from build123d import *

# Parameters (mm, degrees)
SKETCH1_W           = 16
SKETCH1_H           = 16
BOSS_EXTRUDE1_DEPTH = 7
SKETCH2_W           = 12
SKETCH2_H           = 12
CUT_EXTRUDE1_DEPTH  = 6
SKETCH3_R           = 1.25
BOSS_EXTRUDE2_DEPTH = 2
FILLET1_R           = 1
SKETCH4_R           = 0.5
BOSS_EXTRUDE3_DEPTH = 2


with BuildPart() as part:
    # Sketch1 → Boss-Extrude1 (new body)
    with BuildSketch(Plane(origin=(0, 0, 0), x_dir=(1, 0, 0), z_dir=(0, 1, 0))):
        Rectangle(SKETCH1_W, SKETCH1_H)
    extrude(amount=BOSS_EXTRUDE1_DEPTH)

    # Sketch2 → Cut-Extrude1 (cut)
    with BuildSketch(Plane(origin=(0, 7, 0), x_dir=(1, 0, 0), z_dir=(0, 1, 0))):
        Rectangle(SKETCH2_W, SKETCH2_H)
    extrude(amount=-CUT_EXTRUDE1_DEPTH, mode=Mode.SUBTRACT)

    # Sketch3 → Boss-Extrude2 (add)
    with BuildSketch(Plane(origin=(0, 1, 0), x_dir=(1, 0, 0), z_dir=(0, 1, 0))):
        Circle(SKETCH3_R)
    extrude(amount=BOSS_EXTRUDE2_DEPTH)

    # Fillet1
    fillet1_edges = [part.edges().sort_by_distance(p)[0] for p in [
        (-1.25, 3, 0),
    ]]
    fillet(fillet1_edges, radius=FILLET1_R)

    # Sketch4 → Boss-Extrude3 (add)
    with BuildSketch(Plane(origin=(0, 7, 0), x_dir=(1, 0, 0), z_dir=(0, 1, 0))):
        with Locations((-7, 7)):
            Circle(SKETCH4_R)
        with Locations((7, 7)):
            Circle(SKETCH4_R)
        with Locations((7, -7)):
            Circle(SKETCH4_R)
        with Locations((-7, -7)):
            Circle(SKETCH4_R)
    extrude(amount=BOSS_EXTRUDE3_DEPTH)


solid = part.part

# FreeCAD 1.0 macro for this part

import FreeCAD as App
import Part
import Sketcher

V = App.Vector
Q = App.Units.Quantity


def edges_at(feature, points):
    """Names of the edges that pass closest to the given points."""
    edges = feature.Shape.Edges
    near = lambda p: min(range(len(edges)), key=lambda i: edges[i].distToShape(Part.Vertex(*p))[0])
    return sorted({f"Edge{near(p) + 1}" for p in points})

doc = App.newDocument("Part")
body = doc.addObject("PartDesign::Body", "Body")

sketch1 = body.newObject("Sketcher::SketchObject", "Sketch")
sketch1.AttachmentSupport = (doc.getObject("XZ_Plane"), [""])
sketch1.MapMode = "FlatFace"
sketch1.addGeometry(Part.LineSegment(V(-8, -8, 0), V(-8, 8, 0)), False)
sketch1.addGeometry(Part.LineSegment(V(-8, 8, 0), V(8, 8, 0)), False)
sketch1.addGeometry(Part.LineSegment(V(8, 8, 0), V(8, -8, 0)), False)
sketch1.addGeometry(Part.LineSegment(V(8, -8, 0), V(-8, -8, 0)), False)
sketch1.addConstraint(Sketcher.Constraint("Coincident", 0, 2, 1, 1))
sketch1.addConstraint(Sketcher.Constraint("Coincident", 1, 2, 2, 1))
sketch1.addConstraint(Sketcher.Constraint("Coincident", 2, 2, 3, 1))
sketch1.addConstraint(Sketcher.Constraint("Coincident", 3, 2, 0, 1))
sketch1.addConstraint(Sketcher.Constraint("Vertical", 0))
sketch1.addConstraint(Sketcher.Constraint("Horizontal", 1))
sketch1.addConstraint(Sketcher.Constraint("Vertical", 2))
sketch1.addConstraint(Sketcher.Constraint("Horizontal", 3))
sketch1.addConstraint(Sketcher.Constraint("Symmetric", 0, 2, 2, 2, -1, 1))
sketch1.addConstraint(Sketcher.Constraint("Equal", 3, 0))
sketch1.addConstraint(Sketcher.Constraint("DistanceX", 1, 1, 1, 2, Q("16 mm")))
pad1 = body.newObject("PartDesign::Pad", "Pad")
pad1.Profile = sketch1
pad1.Length = 7
pad1.Reversed = True

sketch2 = body.newObject("Sketcher::SketchObject", "Sketch001")
sketch2.AttachmentSupport = (doc.getObject("XZ_Plane"), [""])
sketch2.MapMode = "FlatFace"
sketch2.AttachmentOffset = App.Placement(V(0, 0, -7), App.Rotation())
sketch2.addGeometry(Part.LineSegment(V(-6, -6, 0), V(-6, 6, 0)), False)
sketch2.addGeometry(Part.LineSegment(V(-6, 6, 0), V(6, 6, 0)), False)
sketch2.addGeometry(Part.LineSegment(V(6, 6, 0), V(6, -6, 0)), False)
sketch2.addGeometry(Part.LineSegment(V(6, -6, 0), V(-6, -6, 0)), False)
sketch2.addConstraint(Sketcher.Constraint("Coincident", 0, 2, 1, 1))
sketch2.addConstraint(Sketcher.Constraint("Coincident", 1, 2, 2, 1))
sketch2.addConstraint(Sketcher.Constraint("Coincident", 2, 2, 3, 1))
sketch2.addConstraint(Sketcher.Constraint("Coincident", 3, 2, 0, 1))
sketch2.addConstraint(Sketcher.Constraint("Vertical", 0))
sketch2.addConstraint(Sketcher.Constraint("Horizontal", 1))
sketch2.addConstraint(Sketcher.Constraint("Vertical", 2))
sketch2.addConstraint(Sketcher.Constraint("Horizontal", 3))
sketch2.addConstraint(Sketcher.Constraint("Symmetric", 0, 2, 2, 2, -1, 1))
sketch2.addConstraint(Sketcher.Constraint("Equal", 3, 0))
sketch2.addConstraint(Sketcher.Constraint("DistanceX", 1, 1, 1, 2, Q("12 mm")))
pocket1 = body.newObject("PartDesign::Pocket", "Pocket")
pocket1.Profile = sketch2
pocket1.Length = 6
pocket1.Reversed = True

sketch3 = body.newObject("Sketcher::SketchObject", "Sketch002")
sketch3.AttachmentSupport = (doc.getObject("XZ_Plane"), [""])
sketch3.MapMode = "FlatFace"
sketch3.AttachmentOffset = App.Placement(V(0, 0, -1), App.Rotation())
sketch3.addGeometry(Part.Circle(V(0, 0, 0), V(0, 0, 1), 1.2), False)
sketch3.addConstraint(Sketcher.Constraint("Coincident", 0, 3, -1, 1))
sketch3.addConstraint(Sketcher.Constraint("Diameter", 0, Q("2.5 mm")))
pad2 = body.newObject("PartDesign::Pad", "Pad001")
pad2.Profile = sketch3
pad2.Length = 2
pad2.Reversed = True
doc.recompute()

fillet = body.newObject("PartDesign::Fillet", "Fillet")
fillet.Base = (pad2, edges_at(pad2, [(-1.25, 3, 0)]))
fillet.Radius = 1

sketch4 = body.newObject("Sketcher::SketchObject", "Sketch003")
sketch4.AttachmentSupport = (doc.getObject("XZ_Plane"), [""])
sketch4.MapMode = "FlatFace"
sketch4.AttachmentOffset = App.Placement(V(0, 0, -7), App.Rotation())
sketch4.addGeometry(Part.Circle(V(-7, -7, 0), V(0, 0, 1), 0.5), False)
sketch4.addGeometry(Part.Circle(V(7, -7, 0), V(0, 0, 1), 0.5), False)
sketch4.addGeometry(Part.Circle(V(7, 7, 0), V(0, 0, 1), 0.5), False)
sketch4.addGeometry(Part.Circle(V(-7, 7, 0), V(0, 0, 1), 0.5), False)
sketch4.addConstraint(Sketcher.Constraint("Equal", 0, 1))
sketch4.addConstraint(Sketcher.Constraint("Equal", 1, 2))
sketch4.addConstraint(Sketcher.Constraint("Equal", 2, 3))
sketch4.addConstraint(Sketcher.Constraint("Symmetric", 0, 3, 2, 3, -1, 1))
sketch4.addConstraint(Sketcher.Constraint("Symmetric", 1, 3, 3, 3, -1, 1))
sketch4.addConstraint(Sketcher.Constraint("Symmetric", 0, 3, 1, 3, -2))
sketch4.addConstraint(Sketcher.Constraint("Diameter", 0, Q("1 mm")))
sketch4.addConstraint(Sketcher.Constraint("DistanceX", 0, 3, -1, 1, Q("7 mm")))
sketch4.addConstraint(Sketcher.Constraint("DistanceY", 0, 3, -1, 1, Q("7 mm")))
pad3 = body.newObject("PartDesign::Pad", "Pad002")
pad3.Profile = sketch4
pad3.Length = 2
pad3.Reversed = True

doc.recompute()
